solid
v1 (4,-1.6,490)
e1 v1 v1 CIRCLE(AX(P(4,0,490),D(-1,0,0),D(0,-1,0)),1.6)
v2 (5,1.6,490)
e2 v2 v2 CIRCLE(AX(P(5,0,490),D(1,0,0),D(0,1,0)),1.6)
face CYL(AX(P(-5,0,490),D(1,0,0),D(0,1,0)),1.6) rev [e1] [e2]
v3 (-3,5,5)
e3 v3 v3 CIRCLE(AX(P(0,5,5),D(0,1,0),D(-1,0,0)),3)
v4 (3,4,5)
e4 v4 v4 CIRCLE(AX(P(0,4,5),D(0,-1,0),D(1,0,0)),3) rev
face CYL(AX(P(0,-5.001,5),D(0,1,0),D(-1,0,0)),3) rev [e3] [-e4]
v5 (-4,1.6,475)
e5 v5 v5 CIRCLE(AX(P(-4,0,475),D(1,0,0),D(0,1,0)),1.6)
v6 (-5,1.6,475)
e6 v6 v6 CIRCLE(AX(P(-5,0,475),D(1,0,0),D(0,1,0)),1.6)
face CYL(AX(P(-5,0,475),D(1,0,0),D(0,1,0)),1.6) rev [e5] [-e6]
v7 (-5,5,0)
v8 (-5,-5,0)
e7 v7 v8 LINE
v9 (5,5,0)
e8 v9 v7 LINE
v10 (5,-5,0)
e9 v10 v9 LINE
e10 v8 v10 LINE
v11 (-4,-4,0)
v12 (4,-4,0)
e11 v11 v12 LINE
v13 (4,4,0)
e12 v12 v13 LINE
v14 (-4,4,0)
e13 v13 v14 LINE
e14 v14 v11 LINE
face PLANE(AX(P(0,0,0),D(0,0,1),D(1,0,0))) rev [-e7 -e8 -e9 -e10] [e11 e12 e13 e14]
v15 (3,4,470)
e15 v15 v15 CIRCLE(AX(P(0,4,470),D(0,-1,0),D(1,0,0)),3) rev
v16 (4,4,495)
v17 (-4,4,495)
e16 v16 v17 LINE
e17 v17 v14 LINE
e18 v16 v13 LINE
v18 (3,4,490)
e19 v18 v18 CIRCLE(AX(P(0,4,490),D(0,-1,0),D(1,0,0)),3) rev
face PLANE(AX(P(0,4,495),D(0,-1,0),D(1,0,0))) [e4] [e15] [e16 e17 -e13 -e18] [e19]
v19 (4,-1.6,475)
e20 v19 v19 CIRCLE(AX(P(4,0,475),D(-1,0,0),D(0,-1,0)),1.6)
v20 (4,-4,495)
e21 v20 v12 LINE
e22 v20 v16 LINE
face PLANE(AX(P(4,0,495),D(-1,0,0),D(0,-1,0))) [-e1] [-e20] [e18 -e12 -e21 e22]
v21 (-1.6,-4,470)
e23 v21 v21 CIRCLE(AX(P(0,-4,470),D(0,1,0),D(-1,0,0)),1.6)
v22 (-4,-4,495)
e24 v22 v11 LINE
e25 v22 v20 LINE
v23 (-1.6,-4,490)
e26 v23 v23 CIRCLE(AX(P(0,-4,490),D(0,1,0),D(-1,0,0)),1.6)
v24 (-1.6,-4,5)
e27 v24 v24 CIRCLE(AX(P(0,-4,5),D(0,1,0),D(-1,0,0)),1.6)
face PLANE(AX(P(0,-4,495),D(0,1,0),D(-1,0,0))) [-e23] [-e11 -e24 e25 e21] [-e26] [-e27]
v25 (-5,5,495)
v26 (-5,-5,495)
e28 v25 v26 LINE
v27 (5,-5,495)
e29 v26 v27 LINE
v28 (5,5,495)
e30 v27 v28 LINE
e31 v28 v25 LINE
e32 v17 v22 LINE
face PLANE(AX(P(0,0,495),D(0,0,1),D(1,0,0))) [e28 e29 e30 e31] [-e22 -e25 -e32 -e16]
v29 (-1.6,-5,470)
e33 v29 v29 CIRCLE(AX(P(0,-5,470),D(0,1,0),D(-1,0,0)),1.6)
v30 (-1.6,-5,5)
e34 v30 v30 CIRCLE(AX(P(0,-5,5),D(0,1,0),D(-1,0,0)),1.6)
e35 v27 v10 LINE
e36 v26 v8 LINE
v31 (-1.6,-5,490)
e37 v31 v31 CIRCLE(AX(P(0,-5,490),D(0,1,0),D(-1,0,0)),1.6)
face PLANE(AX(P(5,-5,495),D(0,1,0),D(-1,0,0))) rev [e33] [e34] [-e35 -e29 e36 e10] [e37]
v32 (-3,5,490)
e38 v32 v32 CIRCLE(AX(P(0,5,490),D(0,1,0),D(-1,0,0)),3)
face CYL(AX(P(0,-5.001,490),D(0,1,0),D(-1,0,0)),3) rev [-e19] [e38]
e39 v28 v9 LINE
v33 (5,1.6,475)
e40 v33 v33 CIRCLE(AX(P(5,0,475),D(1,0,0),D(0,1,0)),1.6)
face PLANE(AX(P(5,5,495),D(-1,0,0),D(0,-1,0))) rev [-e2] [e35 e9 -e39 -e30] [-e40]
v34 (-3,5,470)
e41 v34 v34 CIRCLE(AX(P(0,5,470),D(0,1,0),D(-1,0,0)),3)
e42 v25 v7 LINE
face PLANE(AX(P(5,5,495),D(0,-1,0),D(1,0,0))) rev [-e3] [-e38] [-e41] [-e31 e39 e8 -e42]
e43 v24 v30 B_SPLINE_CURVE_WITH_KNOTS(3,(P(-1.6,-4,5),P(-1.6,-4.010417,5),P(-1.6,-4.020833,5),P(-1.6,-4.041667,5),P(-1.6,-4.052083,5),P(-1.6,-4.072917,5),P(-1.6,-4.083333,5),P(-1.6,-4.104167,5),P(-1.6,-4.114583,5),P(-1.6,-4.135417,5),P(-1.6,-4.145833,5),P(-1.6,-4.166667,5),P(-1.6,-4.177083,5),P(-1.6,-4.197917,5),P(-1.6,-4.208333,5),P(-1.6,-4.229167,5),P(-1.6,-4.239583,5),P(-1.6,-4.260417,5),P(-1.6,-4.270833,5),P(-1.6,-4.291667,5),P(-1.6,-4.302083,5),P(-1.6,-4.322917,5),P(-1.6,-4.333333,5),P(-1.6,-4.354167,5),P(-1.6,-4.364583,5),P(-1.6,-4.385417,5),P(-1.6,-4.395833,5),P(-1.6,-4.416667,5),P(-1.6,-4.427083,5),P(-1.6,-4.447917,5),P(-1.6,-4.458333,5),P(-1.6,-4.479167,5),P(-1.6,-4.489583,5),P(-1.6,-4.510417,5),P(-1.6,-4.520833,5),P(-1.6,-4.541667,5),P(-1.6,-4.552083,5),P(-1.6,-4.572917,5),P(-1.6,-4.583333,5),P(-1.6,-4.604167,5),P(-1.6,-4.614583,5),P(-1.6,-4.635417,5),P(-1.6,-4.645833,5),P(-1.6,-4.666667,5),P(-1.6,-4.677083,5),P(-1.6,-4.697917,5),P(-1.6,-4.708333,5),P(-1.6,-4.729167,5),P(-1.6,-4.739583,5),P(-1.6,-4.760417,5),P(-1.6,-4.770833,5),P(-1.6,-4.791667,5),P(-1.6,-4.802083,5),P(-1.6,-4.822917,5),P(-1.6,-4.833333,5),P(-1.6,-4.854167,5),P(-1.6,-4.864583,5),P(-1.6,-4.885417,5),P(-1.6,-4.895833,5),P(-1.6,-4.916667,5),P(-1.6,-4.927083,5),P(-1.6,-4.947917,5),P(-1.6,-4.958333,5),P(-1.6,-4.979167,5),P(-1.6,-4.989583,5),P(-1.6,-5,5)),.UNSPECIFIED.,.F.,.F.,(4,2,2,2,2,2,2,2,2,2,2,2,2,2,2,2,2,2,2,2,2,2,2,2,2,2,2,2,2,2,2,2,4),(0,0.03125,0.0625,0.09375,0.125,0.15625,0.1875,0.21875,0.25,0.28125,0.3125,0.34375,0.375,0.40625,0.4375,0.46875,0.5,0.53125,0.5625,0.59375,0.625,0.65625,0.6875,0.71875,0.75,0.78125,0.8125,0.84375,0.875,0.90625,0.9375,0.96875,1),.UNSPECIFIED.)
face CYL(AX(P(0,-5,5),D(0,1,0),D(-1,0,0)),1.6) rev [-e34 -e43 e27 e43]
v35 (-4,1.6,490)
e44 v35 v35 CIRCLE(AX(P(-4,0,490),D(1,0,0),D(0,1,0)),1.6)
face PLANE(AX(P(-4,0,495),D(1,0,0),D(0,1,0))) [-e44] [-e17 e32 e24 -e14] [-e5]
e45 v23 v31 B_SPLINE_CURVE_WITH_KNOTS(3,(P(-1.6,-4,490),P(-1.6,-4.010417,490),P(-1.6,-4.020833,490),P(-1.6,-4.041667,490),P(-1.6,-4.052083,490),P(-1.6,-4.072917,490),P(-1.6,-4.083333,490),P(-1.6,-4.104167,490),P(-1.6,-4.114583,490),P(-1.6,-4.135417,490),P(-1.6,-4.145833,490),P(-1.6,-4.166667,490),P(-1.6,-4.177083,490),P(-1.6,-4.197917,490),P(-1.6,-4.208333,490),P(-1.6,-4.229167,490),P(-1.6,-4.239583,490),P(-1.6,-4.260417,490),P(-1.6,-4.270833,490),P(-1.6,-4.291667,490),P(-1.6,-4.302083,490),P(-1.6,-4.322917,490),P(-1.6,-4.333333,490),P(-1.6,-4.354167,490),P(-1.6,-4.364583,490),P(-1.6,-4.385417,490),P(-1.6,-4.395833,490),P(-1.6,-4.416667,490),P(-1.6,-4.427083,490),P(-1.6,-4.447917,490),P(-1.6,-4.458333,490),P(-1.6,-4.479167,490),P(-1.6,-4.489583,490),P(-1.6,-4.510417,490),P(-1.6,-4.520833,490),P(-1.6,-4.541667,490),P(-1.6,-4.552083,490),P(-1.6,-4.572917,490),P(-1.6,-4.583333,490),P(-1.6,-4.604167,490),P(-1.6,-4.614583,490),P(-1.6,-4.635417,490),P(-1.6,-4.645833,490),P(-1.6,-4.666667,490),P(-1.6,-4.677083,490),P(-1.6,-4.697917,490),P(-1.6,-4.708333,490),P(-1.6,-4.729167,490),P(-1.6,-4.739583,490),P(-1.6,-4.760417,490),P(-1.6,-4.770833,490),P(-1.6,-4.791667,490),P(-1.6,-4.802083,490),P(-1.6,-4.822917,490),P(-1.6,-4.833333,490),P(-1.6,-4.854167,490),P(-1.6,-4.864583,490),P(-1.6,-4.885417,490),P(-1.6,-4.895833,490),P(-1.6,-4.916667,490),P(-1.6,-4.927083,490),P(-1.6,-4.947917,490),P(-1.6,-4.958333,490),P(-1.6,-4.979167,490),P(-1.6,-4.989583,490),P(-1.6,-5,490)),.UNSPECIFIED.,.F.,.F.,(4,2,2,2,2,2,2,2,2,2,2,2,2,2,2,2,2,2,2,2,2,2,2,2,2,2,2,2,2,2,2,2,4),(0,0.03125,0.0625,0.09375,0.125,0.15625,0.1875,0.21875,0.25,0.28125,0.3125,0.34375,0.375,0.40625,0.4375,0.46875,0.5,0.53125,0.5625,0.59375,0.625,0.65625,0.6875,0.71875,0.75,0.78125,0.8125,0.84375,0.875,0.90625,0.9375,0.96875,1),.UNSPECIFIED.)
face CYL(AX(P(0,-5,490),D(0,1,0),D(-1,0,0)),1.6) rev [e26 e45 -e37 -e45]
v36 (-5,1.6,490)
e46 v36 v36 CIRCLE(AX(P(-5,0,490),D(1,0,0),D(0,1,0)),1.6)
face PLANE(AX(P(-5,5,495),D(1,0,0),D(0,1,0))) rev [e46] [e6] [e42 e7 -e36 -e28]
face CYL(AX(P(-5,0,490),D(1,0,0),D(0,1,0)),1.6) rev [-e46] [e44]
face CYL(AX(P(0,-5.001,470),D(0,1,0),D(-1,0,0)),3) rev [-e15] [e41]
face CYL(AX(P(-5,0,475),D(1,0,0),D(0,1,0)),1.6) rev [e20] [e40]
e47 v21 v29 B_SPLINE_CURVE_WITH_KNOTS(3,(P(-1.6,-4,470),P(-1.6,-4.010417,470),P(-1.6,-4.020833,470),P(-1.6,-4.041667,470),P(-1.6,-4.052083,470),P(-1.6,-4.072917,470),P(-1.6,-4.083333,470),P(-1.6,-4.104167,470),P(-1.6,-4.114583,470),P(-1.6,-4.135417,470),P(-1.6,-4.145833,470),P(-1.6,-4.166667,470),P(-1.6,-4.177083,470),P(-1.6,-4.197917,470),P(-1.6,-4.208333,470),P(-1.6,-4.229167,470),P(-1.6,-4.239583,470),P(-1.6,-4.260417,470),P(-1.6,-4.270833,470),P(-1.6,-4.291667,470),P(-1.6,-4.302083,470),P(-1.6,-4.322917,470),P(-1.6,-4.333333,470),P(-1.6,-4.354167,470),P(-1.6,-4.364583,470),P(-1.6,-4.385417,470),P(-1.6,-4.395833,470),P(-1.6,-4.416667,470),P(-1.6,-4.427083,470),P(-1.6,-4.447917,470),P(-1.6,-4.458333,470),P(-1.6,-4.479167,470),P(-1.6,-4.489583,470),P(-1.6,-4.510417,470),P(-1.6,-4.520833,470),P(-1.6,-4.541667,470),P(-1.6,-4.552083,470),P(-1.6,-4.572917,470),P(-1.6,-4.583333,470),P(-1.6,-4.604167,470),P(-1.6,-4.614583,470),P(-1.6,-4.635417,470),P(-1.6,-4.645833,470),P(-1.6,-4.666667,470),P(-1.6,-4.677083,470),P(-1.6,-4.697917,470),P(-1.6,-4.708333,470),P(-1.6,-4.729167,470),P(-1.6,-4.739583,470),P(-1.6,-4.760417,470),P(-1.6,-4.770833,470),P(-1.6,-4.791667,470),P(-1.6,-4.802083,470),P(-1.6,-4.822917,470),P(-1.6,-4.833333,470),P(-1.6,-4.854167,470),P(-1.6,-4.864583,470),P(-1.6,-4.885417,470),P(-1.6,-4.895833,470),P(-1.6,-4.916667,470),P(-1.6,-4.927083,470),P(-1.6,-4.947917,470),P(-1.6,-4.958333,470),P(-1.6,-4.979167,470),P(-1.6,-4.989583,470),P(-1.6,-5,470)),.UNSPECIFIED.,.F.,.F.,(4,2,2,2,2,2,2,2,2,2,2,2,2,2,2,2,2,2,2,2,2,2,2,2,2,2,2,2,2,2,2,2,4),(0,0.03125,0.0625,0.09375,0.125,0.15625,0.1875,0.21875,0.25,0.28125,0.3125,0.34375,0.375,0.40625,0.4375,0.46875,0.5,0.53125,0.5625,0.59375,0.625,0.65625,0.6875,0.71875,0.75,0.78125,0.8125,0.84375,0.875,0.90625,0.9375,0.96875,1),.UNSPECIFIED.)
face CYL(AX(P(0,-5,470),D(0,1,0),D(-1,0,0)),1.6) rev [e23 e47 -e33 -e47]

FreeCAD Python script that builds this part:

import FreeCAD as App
import Part
import Sketcher

doc = App.newDocument("Part")
body = doc.addObject("PartDesign::Body", "Body")

sketch1 = body.newObject("Sketcher::SketchObject", "Sketch")
sketch1.AttachmentSupport = (doc.getObject("XY_Plane"), [""])
sketch1.MapMode = "FlatFace"
sketch1.addGeometry(Part.LineSegment(App.Vector(-5, 5, 0), App.Vector(-5, -5, 0)), False)
sketch1.addGeometry(Part.LineSegment(App.Vector(-5, -5, 0), App.Vector(5, -5, 0)), False)
sketch1.addGeometry(Part.LineSegment(App.Vector(5, -5, 0), App.Vector(5, 5, 0)), False)
sketch1.addGeometry(Part.LineSegment(App.Vector(5, 5, 0), App.Vector(-5, 5, 0)), False)
sketch1.addGeometry(Part.LineSegment(App.Vector(4, -4, 0), App.Vector(-4, -4, 0)), False)
sketch1.addGeometry(Part.LineSegment(App.Vector(-4, -4, 0), App.Vector(-4, 4, 0)), False)
sketch1.addGeometry(Part.LineSegment(App.Vector(-4, 4, 0), App.Vector(4, 4, 0)), False)
sketch1.addGeometry(Part.LineSegment(App.Vector(4, 4, 0), App.Vector(4, -4, 0)), False)
sketch1.addConstraint(Sketcher.Constraint("Coincident", 0, 2, 1, 1))
sketch1.addConstraint(Sketcher.Constraint("Coincident", 1, 2, 2, 1))
sketch1.addConstraint(Sketcher.Constraint("Coincident", 2, 2, 3, 1))
sketch1.addConstraint(Sketcher.Constraint("Coincident", 3, 2, 0, 1))
sketch1.addConstraint(Sketcher.Constraint("Coincident", 4, 2, 5, 1))
sketch1.addConstraint(Sketcher.Constraint("Coincident", 5, 2, 6, 1))
sketch1.addConstraint(Sketcher.Constraint("Coincident", 6, 2, 7, 1))
sketch1.addConstraint(Sketcher.Constraint("Coincident", 7, 2, 4, 1))
sketch1.addConstraint(Sketcher.Constraint("Vertical", 0))
sketch1.addConstraint(Sketcher.Constraint("Horizontal", 1))
sketch1.addConstraint(Sketcher.Constraint("Vertical", 2))
sketch1.addConstraint(Sketcher.Constraint("Horizontal", 3))
sketch1.addConstraint(Sketcher.Constraint("Horizontal", 4))
sketch1.addConstraint(Sketcher.Constraint("Vertical", 5))
sketch1.addConstraint(Sketcher.Constraint("Horizontal", 6))
sketch1.addConstraint(Sketcher.Constraint("Vertical", 7))
sketch1.addConstraint(Sketcher.Constraint("Symmetric", 0, 2, 2, 2, -1, 1))
sketch1.addConstraint(Sketcher.Constraint("Symmetric", 4, 2, 6, 2, -1, 1))
sketch1.addConstraint(Sketcher.Constraint("Equal", 3, 0))
sketch1.addConstraint(Sketcher.Constraint("Equal", 6, 5))
sketch1.addConstraint(Sketcher.Constraint("DistanceX", 1, 1, 1, 2, 10.0))
sketch1.addConstraint(Sketcher.Constraint("DistanceX", 4, 2, 4, 1, 8.0))
pad1 = body.newObject("PartDesign::Pad", "Pad")
pad1.Profile = sketch1
pad1.Length = 495

sketch2 = body.newObject("Sketcher::SketchObject", "Sketch001")
sketch2.AttachmentSupport = (doc.getObject("XZ_Plane"), [""])
sketch2.MapMode = "FlatFace"
sketch2.AttachmentOffset = App.Placement(App.Vector(0, 0, -5), App.Rotation())
sketch2.addGeometry(Part.Circle(App.Vector(0, 5, 0), App.Vector(0, 0, 1), 1.6), False)
sketch2.addGeometry(Part.Circle(App.Vector(0, 490, 0), App.Vector(0, 0, 1), 1.6), False)
sketch2.addGeometry(Part.Circle(App.Vector(0, 470, 0), App.Vector(0, 0, 1), 1.6), False)
sketch2.addConstraint(Sketcher.Constraint("Equal", 0, 1))
sketch2.addConstraint(Sketcher.Constraint("Equal", 1, 2))
sketch2.addConstraint(Sketcher.Constraint("PointOnObject", 0, 3, -2))
sketch2.addConstraint(Sketcher.Constraint("PointOnObject", 1, 3, -2))
sketch2.addConstraint(Sketcher.Constraint("PointOnObject", 2, 3, -2))
sketch2.addConstraint(Sketcher.Constraint("Diameter", 0, 3.2))
sketch2.addConstraint(Sketcher.Constraint("DistanceY", -1, 1, 0, 3, 5.0))
sketch2.addConstraint(Sketcher.Constraint("DistanceY", -1, 1, 1, 3, 490.0))
sketch2.addConstraint(Sketcher.Constraint("DistanceY", -1, 1, 2, 3, 470.0))
pocket1 = body.newObject("PartDesign::Pocket", "Pocket")
pocket1.Profile = sketch2
pocket1.Type = "ThroughAll"
pocket1.Reversed = True

sketch3 = body.newObject("Sketcher::SketchObject", "Sketch002")
sketch3.AttachmentSupport = (doc.getObject("XZ_Plane"), [""])
sketch3.MapMode = "FlatFace"
sketch3.AttachmentOffset = App.Placement(App.Vector(0, 0, -5), App.Rotation())
sketch3.addGeometry(Part.Circle(App.Vector(0, 5, 0), App.Vector(0, 0, 1), 3), False)
sketch3.addConstraint(Sketcher.Constraint("PointOnObject", 0, 3, -2))
sketch3.addConstraint(Sketcher.Constraint("Diameter", 0, 6.0))
sketch3.addConstraint(Sketcher.Constraint("DistanceY", -1, 1, 0, 3, 5.0))
pocket2 = body.newObject("PartDesign::Pocket", "Pocket001")
pocket2.Profile = sketch3
pocket2.Length = 1
pocket2.Reversed = True

sketch4 = body.newObject("Sketcher::SketchObject", "Sketch003")
sketch4.AttachmentSupport = (doc.getObject("XZ_Plane"), [""])
sketch4.MapMode = "FlatFace"
sketch4.AttachmentOffset = App.Placement(App.Vector(0, 0, -5), App.Rotation())
sketch4.addGeometry(Part.Circle(App.Vector(0, 490, 0), App.Vector(0, 0, 1), 3), False)
sketch4.addConstraint(Sketcher.Constraint("PointOnObject", 0, 3, -2))
sketch4.addConstraint(Sketcher.Constraint("Diameter", 0, 6.0))
sketch4.addConstraint(Sketcher.Constraint("DistanceY", -1, 1, 0, 3, 490.0))
pocket3 = body.newObject("PartDesign::Pocket", "Pocket002")
pocket3.Profile = sketch4
pocket3.Length = 1
pocket3.Reversed = True

sketch5 = body.newObject("Sketcher::SketchObject", "Sketch004")
sketch5.AttachmentSupport = (doc.getObject("XZ_Plane"), [""])
sketch5.MapMode = "FlatFace"
sketch5.AttachmentOffset = App.Placement(App.Vector(0, 0, -5), App.Rotation())
sketch5.addGeometry(Part.Circle(App.Vector(0, 470, 0), App.Vector(0, 0, 1), 3), False)
sketch5.addConstraint(Sketcher.Constraint("PointOnObject", 0, 3, -2))
sketch5.addConstraint(Sketcher.Constraint("Diameter", 0, 6.0))
sketch5.addConstraint(Sketcher.Constraint("DistanceY", -1, 1, 0, 3, 470.0))
pocket4 = body.newObject("PartDesign::Pocket", "Pocket003")
pocket4.Profile = sketch5
pocket4.Length = 1
pocket4.Reversed = True

sketch6 = body.newObject("Sketcher::SketchObject", "Sketch005")
sketch6.AttachmentSupport = (doc.getObject("YZ_Plane"), [""])
sketch6.MapMode = "FlatFace"
sketch6.AttachmentOffset = App.Placement(App.Vector(0, 0, 5), App.Rotation())
sketch6.addGeometry(Part.Circle(App.Vector(0, 490, 0), App.Vector(0, 0, 1), 1.6), False)
sketch6.addGeometry(Part.Circle(App.Vector(0, 475, 0), App.Vector(0, 0, 1), 1.6), False)
sketch6.addConstraint(Sketcher.Constraint("Equal", 0, 1))
sketch6.addConstraint(Sketcher.Constraint("PointOnObject", 0, 3, -2))
sketch6.addConstraint(Sketcher.Constraint("PointOnObject", 1, 3, -2))
sketch6.addConstraint(Sketcher.Constraint("Diameter", 0, 3.2))
sketch6.addConstraint(Sketcher.Constraint("DistanceY", -1, 1, 0, 3, 490.0))
sketch6.addConstraint(Sketcher.Constraint("DistanceY", -1, 1, 1, 3, 475.0))
pocket5 = body.newObject("PartDesign::Pocket", "Pocket004")
pocket5.Profile = sketch6
pocket5.Type = "ThroughAll"

doc.recompute()
